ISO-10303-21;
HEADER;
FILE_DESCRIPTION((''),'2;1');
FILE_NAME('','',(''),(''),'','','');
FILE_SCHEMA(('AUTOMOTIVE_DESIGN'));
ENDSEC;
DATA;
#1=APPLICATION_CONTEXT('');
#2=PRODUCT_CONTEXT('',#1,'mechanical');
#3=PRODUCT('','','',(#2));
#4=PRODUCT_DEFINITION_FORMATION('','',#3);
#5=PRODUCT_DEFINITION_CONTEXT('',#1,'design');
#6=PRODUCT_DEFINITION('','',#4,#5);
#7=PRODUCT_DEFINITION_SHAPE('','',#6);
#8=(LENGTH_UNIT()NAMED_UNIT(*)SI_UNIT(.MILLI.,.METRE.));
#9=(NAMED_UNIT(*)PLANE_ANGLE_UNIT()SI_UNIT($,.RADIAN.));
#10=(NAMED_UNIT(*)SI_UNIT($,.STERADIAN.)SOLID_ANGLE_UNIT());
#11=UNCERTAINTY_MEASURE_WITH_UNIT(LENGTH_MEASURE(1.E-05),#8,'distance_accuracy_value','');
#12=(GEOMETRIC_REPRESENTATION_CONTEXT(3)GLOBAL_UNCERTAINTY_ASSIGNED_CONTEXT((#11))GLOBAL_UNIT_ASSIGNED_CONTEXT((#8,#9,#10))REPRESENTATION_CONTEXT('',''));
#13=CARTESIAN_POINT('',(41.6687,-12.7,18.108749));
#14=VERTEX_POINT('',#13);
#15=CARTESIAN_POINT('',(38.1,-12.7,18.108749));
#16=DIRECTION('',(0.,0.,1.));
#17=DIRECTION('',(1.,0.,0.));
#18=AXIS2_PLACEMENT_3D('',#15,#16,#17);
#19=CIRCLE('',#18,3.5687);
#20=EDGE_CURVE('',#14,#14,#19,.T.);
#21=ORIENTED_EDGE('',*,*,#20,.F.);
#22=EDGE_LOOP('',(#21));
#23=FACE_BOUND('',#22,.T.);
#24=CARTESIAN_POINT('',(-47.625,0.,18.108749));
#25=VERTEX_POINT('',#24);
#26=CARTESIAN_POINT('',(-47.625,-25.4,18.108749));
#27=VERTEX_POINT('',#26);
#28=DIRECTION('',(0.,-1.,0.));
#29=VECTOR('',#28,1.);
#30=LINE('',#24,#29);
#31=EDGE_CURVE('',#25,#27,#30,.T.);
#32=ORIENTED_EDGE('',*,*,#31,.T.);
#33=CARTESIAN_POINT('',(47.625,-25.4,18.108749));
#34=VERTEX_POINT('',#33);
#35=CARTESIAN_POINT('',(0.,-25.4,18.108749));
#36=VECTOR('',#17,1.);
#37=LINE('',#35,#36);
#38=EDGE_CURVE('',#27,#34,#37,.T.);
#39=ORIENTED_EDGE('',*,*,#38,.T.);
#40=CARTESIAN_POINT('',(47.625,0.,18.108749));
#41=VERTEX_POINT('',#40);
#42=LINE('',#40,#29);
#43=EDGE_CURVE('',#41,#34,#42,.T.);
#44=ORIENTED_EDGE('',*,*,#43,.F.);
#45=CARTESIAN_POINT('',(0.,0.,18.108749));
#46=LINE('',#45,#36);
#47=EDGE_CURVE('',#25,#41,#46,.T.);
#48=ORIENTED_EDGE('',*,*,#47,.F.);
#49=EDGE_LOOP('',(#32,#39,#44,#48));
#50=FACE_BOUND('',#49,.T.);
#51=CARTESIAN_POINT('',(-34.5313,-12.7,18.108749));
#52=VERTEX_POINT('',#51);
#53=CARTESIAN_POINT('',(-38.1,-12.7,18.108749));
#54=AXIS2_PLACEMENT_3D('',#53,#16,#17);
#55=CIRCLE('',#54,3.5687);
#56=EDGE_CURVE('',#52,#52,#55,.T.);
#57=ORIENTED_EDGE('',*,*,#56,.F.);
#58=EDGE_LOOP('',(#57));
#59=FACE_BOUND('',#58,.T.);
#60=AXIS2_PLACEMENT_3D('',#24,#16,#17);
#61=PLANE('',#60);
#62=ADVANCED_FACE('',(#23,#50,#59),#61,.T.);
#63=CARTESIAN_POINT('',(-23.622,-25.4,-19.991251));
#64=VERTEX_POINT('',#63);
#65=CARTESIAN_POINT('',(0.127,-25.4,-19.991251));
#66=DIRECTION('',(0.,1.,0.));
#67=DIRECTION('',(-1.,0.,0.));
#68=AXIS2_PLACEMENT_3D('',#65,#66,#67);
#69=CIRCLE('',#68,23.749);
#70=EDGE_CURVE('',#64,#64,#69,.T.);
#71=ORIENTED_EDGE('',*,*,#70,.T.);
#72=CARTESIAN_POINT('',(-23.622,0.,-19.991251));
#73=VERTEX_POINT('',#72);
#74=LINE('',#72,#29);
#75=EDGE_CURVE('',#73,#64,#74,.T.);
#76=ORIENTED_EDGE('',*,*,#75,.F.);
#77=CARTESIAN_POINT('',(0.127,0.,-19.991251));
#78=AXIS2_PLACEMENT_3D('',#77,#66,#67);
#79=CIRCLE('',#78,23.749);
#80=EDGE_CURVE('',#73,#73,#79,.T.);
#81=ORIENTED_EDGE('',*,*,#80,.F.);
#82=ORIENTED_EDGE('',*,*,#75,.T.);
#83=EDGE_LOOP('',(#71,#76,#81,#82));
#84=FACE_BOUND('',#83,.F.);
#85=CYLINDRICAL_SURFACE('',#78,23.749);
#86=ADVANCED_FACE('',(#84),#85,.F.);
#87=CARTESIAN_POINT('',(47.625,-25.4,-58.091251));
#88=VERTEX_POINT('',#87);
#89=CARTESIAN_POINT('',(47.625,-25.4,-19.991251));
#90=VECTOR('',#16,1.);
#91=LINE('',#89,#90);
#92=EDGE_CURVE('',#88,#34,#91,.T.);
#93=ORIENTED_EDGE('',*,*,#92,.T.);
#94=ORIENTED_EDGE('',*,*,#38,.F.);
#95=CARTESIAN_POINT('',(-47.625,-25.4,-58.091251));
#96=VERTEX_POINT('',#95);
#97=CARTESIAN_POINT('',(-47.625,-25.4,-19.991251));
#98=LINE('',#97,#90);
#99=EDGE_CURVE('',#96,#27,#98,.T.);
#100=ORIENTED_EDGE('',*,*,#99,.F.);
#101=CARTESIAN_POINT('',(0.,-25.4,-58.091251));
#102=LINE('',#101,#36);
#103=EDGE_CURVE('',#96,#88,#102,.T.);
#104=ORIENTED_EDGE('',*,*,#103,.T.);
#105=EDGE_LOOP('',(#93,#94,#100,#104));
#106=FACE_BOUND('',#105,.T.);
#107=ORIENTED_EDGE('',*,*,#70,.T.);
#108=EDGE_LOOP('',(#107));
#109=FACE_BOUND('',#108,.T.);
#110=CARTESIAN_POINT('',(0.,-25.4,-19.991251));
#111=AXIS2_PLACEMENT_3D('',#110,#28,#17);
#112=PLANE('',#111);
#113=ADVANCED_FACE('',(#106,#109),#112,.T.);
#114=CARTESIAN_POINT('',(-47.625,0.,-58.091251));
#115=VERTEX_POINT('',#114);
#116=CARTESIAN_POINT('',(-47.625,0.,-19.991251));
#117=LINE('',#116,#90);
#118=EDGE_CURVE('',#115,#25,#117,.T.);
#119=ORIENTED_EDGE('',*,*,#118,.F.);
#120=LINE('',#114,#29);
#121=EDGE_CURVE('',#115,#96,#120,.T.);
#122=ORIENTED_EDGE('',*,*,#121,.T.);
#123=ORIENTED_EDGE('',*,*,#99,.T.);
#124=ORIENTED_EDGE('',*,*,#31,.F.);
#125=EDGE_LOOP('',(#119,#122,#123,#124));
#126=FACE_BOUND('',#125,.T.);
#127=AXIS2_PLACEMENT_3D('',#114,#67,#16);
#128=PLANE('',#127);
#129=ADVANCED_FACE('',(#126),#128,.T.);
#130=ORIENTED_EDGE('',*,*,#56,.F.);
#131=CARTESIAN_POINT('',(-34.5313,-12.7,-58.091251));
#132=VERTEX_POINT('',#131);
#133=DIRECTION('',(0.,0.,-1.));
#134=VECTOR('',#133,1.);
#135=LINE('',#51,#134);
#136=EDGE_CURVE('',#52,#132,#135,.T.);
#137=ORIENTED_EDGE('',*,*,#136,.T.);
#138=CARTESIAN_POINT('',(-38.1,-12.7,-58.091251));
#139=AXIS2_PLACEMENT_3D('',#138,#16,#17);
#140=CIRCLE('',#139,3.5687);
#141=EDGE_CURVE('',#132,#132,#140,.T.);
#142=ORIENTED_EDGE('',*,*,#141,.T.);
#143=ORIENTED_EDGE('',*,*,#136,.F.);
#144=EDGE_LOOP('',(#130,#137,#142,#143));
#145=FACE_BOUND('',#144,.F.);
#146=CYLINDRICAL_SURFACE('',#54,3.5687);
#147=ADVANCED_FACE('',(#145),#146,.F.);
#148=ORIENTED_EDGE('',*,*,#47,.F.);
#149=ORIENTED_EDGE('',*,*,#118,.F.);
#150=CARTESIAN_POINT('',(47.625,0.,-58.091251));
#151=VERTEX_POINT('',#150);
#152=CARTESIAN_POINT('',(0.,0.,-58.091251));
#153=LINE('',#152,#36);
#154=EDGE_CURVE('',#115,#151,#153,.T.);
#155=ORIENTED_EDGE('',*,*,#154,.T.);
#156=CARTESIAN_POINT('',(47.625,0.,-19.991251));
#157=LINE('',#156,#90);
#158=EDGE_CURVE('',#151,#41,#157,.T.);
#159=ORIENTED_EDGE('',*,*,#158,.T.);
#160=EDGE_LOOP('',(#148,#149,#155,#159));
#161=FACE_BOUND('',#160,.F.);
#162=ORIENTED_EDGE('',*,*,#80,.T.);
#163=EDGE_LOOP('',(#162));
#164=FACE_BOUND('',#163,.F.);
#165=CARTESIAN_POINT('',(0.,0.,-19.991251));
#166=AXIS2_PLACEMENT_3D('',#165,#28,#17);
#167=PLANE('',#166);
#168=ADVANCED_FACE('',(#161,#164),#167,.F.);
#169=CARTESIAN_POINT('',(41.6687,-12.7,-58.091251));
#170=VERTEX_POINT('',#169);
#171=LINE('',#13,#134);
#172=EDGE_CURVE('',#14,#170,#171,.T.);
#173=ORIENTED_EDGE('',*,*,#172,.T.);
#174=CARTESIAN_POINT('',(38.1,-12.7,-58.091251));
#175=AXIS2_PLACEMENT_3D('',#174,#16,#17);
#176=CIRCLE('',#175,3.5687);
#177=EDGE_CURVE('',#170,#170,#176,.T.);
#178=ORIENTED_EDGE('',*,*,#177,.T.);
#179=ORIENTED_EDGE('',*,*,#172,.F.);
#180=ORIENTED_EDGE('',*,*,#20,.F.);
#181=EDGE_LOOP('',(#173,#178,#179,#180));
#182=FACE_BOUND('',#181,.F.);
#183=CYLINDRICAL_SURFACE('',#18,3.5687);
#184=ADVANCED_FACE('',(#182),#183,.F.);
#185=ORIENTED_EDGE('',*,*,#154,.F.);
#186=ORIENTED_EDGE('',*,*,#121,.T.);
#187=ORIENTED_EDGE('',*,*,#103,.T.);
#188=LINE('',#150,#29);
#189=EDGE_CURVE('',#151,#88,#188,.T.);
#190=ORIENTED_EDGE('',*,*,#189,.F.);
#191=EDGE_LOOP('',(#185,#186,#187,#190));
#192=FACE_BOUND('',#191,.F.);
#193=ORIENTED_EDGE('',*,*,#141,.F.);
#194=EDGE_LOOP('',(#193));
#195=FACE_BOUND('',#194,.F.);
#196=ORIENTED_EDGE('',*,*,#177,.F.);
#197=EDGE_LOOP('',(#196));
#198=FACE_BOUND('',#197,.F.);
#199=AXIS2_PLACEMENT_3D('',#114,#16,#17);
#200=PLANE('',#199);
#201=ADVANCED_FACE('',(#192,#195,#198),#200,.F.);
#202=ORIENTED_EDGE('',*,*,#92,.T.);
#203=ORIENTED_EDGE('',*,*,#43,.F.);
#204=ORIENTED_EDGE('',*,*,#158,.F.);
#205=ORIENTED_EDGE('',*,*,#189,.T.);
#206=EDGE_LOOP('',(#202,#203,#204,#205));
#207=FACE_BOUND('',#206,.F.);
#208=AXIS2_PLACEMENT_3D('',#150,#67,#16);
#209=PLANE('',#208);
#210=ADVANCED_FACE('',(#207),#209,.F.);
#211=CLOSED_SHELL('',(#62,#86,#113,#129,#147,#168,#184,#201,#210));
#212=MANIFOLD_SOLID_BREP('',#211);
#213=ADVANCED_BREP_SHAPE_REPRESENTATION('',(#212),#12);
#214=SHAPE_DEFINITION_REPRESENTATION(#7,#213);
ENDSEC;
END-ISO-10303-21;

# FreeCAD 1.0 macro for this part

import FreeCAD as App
import Part
import Sketcher

V = App.Vector
Q = App.Units.Quantity


def add_polygon(sketch, points):
    """Adds a closed chain of lines whose ends are joined by coincident constraints."""
    first, n = sketch.GeometryCount, len(points)
    for a, b in zip(points, points[1:] + points[:1]):
        sketch.addGeometry(Part.LineSegment(App.Vector(*a, 0), App.Vector(*b, 0)), False)
    for i in range(n):
        sketch.addConstraint(Sketcher.Constraint("Coincident", first + i, 2, first + (i + 1) % n, 1))

doc = App.newDocument("Part")
body = doc.addObject("PartDesign::Body", "Body")

# Sketch on XZ plane
sketch1 = body.newObject("Sketcher::SketchObject", "Sketch")
sketch1.AttachmentSupport = (doc.getObject("XZ_Plane"), [""])
sketch1.MapMode = "FlatFace"
add_polygon(sketch1, [(-47.625, 18.108749), (-47.625, -58.091251), (47.625, -58.091251), (47.625, 18.108749)])  # lines 0-3
sketch1.addConstraint([
    Sketcher.Constraint("Vertical", 0),
    Sketcher.Constraint("Horizontal", 1),
    Sketcher.Constraint("Vertical", 2),
    Sketcher.Constraint("Horizontal", 3),
    Sketcher.Constraint("DistanceY", 0, 2, 0, 1, Q("3 in")),
    Sketcher.Constraint("DistanceX", 1, 1, 1, 2, Q("3.75 in")),
    Sketcher.Constraint("DistanceX", 0, 2, -1, 1, Q("1.875 in")),
    Sketcher.Constraint("DistanceY", 0, 2, -1, 1, Q("58.091251 mm")),
])
pad1 = body.newObject("PartDesign::Pad", "Pad")
pad1.Profile = sketch1
pad1.Length = Q("1 in")

# Sketch on XZ plane
sketch2 = body.newObject("Sketcher::SketchObject", "Sketch001")
sketch2.AttachmentSupport = (doc.getObject("XZ_Plane"), [""])
sketch2.MapMode = "FlatFace"
sketch2.addGeometry(Part.Circle(V(0.127, -19.991251, 0), V(0, 0, 1), 23.749), False)
sketch2.addConstraint([
    Sketcher.Constraint("Diameter", 0, Q("1.87 in")),
    Sketcher.Constraint("DistanceX", -1, 1, 0, 3, Q("0.005 in")),
    Sketcher.Constraint("DistanceY", 0, 3, -1, 1, Q("19.991251 mm")),
])
pocket1 = body.newObject("PartDesign::Pocket", "Pocket")
pocket1.Profile = sketch2
pocket1.Type = "ThroughAll"
pocket1.Reversed = True

# Sketch on XY plane
sketch3 = body.newObject("Sketcher::SketchObject", "Sketch002")
sketch3.AttachmentSupport = (doc.getObject("XY_Plane"), [""])
sketch3.MapMode = "FlatFace"
sketch3.AttachmentOffset = App.Placement(V(0, 0, 18.108749), App.Rotation())
sketch3.addGeometry([
    Part.Circle(V(-38.1, -12.7, 0), V(0, 0, 1), 3.5687),
    Part.Circle(V(38.1, -12.7, 0), V(0, 0, 1), 3.5687),
], False)
sketch3.addConstraint([
    Sketcher.Constraint("Equal", 0, 1),
    Sketcher.Constraint("Symmetric", 0, 3, 1, 3, -2),
    Sketcher.Constraint("Diameter", 0, Q("0.281 in")),
    Sketcher.Constraint("DistanceX", 0, 3, 1, 3, Q("3 in")),
    Sketcher.Constraint("DistanceY", 0, 3, -1, 1, Q("0.5 in")),
])
pocket2 = body.newObject("PartDesign::Pocket", "Pocket001")
pocket2.Profile = sketch3
pocket2.Type = "ThroughAll"

doc.recompute()
